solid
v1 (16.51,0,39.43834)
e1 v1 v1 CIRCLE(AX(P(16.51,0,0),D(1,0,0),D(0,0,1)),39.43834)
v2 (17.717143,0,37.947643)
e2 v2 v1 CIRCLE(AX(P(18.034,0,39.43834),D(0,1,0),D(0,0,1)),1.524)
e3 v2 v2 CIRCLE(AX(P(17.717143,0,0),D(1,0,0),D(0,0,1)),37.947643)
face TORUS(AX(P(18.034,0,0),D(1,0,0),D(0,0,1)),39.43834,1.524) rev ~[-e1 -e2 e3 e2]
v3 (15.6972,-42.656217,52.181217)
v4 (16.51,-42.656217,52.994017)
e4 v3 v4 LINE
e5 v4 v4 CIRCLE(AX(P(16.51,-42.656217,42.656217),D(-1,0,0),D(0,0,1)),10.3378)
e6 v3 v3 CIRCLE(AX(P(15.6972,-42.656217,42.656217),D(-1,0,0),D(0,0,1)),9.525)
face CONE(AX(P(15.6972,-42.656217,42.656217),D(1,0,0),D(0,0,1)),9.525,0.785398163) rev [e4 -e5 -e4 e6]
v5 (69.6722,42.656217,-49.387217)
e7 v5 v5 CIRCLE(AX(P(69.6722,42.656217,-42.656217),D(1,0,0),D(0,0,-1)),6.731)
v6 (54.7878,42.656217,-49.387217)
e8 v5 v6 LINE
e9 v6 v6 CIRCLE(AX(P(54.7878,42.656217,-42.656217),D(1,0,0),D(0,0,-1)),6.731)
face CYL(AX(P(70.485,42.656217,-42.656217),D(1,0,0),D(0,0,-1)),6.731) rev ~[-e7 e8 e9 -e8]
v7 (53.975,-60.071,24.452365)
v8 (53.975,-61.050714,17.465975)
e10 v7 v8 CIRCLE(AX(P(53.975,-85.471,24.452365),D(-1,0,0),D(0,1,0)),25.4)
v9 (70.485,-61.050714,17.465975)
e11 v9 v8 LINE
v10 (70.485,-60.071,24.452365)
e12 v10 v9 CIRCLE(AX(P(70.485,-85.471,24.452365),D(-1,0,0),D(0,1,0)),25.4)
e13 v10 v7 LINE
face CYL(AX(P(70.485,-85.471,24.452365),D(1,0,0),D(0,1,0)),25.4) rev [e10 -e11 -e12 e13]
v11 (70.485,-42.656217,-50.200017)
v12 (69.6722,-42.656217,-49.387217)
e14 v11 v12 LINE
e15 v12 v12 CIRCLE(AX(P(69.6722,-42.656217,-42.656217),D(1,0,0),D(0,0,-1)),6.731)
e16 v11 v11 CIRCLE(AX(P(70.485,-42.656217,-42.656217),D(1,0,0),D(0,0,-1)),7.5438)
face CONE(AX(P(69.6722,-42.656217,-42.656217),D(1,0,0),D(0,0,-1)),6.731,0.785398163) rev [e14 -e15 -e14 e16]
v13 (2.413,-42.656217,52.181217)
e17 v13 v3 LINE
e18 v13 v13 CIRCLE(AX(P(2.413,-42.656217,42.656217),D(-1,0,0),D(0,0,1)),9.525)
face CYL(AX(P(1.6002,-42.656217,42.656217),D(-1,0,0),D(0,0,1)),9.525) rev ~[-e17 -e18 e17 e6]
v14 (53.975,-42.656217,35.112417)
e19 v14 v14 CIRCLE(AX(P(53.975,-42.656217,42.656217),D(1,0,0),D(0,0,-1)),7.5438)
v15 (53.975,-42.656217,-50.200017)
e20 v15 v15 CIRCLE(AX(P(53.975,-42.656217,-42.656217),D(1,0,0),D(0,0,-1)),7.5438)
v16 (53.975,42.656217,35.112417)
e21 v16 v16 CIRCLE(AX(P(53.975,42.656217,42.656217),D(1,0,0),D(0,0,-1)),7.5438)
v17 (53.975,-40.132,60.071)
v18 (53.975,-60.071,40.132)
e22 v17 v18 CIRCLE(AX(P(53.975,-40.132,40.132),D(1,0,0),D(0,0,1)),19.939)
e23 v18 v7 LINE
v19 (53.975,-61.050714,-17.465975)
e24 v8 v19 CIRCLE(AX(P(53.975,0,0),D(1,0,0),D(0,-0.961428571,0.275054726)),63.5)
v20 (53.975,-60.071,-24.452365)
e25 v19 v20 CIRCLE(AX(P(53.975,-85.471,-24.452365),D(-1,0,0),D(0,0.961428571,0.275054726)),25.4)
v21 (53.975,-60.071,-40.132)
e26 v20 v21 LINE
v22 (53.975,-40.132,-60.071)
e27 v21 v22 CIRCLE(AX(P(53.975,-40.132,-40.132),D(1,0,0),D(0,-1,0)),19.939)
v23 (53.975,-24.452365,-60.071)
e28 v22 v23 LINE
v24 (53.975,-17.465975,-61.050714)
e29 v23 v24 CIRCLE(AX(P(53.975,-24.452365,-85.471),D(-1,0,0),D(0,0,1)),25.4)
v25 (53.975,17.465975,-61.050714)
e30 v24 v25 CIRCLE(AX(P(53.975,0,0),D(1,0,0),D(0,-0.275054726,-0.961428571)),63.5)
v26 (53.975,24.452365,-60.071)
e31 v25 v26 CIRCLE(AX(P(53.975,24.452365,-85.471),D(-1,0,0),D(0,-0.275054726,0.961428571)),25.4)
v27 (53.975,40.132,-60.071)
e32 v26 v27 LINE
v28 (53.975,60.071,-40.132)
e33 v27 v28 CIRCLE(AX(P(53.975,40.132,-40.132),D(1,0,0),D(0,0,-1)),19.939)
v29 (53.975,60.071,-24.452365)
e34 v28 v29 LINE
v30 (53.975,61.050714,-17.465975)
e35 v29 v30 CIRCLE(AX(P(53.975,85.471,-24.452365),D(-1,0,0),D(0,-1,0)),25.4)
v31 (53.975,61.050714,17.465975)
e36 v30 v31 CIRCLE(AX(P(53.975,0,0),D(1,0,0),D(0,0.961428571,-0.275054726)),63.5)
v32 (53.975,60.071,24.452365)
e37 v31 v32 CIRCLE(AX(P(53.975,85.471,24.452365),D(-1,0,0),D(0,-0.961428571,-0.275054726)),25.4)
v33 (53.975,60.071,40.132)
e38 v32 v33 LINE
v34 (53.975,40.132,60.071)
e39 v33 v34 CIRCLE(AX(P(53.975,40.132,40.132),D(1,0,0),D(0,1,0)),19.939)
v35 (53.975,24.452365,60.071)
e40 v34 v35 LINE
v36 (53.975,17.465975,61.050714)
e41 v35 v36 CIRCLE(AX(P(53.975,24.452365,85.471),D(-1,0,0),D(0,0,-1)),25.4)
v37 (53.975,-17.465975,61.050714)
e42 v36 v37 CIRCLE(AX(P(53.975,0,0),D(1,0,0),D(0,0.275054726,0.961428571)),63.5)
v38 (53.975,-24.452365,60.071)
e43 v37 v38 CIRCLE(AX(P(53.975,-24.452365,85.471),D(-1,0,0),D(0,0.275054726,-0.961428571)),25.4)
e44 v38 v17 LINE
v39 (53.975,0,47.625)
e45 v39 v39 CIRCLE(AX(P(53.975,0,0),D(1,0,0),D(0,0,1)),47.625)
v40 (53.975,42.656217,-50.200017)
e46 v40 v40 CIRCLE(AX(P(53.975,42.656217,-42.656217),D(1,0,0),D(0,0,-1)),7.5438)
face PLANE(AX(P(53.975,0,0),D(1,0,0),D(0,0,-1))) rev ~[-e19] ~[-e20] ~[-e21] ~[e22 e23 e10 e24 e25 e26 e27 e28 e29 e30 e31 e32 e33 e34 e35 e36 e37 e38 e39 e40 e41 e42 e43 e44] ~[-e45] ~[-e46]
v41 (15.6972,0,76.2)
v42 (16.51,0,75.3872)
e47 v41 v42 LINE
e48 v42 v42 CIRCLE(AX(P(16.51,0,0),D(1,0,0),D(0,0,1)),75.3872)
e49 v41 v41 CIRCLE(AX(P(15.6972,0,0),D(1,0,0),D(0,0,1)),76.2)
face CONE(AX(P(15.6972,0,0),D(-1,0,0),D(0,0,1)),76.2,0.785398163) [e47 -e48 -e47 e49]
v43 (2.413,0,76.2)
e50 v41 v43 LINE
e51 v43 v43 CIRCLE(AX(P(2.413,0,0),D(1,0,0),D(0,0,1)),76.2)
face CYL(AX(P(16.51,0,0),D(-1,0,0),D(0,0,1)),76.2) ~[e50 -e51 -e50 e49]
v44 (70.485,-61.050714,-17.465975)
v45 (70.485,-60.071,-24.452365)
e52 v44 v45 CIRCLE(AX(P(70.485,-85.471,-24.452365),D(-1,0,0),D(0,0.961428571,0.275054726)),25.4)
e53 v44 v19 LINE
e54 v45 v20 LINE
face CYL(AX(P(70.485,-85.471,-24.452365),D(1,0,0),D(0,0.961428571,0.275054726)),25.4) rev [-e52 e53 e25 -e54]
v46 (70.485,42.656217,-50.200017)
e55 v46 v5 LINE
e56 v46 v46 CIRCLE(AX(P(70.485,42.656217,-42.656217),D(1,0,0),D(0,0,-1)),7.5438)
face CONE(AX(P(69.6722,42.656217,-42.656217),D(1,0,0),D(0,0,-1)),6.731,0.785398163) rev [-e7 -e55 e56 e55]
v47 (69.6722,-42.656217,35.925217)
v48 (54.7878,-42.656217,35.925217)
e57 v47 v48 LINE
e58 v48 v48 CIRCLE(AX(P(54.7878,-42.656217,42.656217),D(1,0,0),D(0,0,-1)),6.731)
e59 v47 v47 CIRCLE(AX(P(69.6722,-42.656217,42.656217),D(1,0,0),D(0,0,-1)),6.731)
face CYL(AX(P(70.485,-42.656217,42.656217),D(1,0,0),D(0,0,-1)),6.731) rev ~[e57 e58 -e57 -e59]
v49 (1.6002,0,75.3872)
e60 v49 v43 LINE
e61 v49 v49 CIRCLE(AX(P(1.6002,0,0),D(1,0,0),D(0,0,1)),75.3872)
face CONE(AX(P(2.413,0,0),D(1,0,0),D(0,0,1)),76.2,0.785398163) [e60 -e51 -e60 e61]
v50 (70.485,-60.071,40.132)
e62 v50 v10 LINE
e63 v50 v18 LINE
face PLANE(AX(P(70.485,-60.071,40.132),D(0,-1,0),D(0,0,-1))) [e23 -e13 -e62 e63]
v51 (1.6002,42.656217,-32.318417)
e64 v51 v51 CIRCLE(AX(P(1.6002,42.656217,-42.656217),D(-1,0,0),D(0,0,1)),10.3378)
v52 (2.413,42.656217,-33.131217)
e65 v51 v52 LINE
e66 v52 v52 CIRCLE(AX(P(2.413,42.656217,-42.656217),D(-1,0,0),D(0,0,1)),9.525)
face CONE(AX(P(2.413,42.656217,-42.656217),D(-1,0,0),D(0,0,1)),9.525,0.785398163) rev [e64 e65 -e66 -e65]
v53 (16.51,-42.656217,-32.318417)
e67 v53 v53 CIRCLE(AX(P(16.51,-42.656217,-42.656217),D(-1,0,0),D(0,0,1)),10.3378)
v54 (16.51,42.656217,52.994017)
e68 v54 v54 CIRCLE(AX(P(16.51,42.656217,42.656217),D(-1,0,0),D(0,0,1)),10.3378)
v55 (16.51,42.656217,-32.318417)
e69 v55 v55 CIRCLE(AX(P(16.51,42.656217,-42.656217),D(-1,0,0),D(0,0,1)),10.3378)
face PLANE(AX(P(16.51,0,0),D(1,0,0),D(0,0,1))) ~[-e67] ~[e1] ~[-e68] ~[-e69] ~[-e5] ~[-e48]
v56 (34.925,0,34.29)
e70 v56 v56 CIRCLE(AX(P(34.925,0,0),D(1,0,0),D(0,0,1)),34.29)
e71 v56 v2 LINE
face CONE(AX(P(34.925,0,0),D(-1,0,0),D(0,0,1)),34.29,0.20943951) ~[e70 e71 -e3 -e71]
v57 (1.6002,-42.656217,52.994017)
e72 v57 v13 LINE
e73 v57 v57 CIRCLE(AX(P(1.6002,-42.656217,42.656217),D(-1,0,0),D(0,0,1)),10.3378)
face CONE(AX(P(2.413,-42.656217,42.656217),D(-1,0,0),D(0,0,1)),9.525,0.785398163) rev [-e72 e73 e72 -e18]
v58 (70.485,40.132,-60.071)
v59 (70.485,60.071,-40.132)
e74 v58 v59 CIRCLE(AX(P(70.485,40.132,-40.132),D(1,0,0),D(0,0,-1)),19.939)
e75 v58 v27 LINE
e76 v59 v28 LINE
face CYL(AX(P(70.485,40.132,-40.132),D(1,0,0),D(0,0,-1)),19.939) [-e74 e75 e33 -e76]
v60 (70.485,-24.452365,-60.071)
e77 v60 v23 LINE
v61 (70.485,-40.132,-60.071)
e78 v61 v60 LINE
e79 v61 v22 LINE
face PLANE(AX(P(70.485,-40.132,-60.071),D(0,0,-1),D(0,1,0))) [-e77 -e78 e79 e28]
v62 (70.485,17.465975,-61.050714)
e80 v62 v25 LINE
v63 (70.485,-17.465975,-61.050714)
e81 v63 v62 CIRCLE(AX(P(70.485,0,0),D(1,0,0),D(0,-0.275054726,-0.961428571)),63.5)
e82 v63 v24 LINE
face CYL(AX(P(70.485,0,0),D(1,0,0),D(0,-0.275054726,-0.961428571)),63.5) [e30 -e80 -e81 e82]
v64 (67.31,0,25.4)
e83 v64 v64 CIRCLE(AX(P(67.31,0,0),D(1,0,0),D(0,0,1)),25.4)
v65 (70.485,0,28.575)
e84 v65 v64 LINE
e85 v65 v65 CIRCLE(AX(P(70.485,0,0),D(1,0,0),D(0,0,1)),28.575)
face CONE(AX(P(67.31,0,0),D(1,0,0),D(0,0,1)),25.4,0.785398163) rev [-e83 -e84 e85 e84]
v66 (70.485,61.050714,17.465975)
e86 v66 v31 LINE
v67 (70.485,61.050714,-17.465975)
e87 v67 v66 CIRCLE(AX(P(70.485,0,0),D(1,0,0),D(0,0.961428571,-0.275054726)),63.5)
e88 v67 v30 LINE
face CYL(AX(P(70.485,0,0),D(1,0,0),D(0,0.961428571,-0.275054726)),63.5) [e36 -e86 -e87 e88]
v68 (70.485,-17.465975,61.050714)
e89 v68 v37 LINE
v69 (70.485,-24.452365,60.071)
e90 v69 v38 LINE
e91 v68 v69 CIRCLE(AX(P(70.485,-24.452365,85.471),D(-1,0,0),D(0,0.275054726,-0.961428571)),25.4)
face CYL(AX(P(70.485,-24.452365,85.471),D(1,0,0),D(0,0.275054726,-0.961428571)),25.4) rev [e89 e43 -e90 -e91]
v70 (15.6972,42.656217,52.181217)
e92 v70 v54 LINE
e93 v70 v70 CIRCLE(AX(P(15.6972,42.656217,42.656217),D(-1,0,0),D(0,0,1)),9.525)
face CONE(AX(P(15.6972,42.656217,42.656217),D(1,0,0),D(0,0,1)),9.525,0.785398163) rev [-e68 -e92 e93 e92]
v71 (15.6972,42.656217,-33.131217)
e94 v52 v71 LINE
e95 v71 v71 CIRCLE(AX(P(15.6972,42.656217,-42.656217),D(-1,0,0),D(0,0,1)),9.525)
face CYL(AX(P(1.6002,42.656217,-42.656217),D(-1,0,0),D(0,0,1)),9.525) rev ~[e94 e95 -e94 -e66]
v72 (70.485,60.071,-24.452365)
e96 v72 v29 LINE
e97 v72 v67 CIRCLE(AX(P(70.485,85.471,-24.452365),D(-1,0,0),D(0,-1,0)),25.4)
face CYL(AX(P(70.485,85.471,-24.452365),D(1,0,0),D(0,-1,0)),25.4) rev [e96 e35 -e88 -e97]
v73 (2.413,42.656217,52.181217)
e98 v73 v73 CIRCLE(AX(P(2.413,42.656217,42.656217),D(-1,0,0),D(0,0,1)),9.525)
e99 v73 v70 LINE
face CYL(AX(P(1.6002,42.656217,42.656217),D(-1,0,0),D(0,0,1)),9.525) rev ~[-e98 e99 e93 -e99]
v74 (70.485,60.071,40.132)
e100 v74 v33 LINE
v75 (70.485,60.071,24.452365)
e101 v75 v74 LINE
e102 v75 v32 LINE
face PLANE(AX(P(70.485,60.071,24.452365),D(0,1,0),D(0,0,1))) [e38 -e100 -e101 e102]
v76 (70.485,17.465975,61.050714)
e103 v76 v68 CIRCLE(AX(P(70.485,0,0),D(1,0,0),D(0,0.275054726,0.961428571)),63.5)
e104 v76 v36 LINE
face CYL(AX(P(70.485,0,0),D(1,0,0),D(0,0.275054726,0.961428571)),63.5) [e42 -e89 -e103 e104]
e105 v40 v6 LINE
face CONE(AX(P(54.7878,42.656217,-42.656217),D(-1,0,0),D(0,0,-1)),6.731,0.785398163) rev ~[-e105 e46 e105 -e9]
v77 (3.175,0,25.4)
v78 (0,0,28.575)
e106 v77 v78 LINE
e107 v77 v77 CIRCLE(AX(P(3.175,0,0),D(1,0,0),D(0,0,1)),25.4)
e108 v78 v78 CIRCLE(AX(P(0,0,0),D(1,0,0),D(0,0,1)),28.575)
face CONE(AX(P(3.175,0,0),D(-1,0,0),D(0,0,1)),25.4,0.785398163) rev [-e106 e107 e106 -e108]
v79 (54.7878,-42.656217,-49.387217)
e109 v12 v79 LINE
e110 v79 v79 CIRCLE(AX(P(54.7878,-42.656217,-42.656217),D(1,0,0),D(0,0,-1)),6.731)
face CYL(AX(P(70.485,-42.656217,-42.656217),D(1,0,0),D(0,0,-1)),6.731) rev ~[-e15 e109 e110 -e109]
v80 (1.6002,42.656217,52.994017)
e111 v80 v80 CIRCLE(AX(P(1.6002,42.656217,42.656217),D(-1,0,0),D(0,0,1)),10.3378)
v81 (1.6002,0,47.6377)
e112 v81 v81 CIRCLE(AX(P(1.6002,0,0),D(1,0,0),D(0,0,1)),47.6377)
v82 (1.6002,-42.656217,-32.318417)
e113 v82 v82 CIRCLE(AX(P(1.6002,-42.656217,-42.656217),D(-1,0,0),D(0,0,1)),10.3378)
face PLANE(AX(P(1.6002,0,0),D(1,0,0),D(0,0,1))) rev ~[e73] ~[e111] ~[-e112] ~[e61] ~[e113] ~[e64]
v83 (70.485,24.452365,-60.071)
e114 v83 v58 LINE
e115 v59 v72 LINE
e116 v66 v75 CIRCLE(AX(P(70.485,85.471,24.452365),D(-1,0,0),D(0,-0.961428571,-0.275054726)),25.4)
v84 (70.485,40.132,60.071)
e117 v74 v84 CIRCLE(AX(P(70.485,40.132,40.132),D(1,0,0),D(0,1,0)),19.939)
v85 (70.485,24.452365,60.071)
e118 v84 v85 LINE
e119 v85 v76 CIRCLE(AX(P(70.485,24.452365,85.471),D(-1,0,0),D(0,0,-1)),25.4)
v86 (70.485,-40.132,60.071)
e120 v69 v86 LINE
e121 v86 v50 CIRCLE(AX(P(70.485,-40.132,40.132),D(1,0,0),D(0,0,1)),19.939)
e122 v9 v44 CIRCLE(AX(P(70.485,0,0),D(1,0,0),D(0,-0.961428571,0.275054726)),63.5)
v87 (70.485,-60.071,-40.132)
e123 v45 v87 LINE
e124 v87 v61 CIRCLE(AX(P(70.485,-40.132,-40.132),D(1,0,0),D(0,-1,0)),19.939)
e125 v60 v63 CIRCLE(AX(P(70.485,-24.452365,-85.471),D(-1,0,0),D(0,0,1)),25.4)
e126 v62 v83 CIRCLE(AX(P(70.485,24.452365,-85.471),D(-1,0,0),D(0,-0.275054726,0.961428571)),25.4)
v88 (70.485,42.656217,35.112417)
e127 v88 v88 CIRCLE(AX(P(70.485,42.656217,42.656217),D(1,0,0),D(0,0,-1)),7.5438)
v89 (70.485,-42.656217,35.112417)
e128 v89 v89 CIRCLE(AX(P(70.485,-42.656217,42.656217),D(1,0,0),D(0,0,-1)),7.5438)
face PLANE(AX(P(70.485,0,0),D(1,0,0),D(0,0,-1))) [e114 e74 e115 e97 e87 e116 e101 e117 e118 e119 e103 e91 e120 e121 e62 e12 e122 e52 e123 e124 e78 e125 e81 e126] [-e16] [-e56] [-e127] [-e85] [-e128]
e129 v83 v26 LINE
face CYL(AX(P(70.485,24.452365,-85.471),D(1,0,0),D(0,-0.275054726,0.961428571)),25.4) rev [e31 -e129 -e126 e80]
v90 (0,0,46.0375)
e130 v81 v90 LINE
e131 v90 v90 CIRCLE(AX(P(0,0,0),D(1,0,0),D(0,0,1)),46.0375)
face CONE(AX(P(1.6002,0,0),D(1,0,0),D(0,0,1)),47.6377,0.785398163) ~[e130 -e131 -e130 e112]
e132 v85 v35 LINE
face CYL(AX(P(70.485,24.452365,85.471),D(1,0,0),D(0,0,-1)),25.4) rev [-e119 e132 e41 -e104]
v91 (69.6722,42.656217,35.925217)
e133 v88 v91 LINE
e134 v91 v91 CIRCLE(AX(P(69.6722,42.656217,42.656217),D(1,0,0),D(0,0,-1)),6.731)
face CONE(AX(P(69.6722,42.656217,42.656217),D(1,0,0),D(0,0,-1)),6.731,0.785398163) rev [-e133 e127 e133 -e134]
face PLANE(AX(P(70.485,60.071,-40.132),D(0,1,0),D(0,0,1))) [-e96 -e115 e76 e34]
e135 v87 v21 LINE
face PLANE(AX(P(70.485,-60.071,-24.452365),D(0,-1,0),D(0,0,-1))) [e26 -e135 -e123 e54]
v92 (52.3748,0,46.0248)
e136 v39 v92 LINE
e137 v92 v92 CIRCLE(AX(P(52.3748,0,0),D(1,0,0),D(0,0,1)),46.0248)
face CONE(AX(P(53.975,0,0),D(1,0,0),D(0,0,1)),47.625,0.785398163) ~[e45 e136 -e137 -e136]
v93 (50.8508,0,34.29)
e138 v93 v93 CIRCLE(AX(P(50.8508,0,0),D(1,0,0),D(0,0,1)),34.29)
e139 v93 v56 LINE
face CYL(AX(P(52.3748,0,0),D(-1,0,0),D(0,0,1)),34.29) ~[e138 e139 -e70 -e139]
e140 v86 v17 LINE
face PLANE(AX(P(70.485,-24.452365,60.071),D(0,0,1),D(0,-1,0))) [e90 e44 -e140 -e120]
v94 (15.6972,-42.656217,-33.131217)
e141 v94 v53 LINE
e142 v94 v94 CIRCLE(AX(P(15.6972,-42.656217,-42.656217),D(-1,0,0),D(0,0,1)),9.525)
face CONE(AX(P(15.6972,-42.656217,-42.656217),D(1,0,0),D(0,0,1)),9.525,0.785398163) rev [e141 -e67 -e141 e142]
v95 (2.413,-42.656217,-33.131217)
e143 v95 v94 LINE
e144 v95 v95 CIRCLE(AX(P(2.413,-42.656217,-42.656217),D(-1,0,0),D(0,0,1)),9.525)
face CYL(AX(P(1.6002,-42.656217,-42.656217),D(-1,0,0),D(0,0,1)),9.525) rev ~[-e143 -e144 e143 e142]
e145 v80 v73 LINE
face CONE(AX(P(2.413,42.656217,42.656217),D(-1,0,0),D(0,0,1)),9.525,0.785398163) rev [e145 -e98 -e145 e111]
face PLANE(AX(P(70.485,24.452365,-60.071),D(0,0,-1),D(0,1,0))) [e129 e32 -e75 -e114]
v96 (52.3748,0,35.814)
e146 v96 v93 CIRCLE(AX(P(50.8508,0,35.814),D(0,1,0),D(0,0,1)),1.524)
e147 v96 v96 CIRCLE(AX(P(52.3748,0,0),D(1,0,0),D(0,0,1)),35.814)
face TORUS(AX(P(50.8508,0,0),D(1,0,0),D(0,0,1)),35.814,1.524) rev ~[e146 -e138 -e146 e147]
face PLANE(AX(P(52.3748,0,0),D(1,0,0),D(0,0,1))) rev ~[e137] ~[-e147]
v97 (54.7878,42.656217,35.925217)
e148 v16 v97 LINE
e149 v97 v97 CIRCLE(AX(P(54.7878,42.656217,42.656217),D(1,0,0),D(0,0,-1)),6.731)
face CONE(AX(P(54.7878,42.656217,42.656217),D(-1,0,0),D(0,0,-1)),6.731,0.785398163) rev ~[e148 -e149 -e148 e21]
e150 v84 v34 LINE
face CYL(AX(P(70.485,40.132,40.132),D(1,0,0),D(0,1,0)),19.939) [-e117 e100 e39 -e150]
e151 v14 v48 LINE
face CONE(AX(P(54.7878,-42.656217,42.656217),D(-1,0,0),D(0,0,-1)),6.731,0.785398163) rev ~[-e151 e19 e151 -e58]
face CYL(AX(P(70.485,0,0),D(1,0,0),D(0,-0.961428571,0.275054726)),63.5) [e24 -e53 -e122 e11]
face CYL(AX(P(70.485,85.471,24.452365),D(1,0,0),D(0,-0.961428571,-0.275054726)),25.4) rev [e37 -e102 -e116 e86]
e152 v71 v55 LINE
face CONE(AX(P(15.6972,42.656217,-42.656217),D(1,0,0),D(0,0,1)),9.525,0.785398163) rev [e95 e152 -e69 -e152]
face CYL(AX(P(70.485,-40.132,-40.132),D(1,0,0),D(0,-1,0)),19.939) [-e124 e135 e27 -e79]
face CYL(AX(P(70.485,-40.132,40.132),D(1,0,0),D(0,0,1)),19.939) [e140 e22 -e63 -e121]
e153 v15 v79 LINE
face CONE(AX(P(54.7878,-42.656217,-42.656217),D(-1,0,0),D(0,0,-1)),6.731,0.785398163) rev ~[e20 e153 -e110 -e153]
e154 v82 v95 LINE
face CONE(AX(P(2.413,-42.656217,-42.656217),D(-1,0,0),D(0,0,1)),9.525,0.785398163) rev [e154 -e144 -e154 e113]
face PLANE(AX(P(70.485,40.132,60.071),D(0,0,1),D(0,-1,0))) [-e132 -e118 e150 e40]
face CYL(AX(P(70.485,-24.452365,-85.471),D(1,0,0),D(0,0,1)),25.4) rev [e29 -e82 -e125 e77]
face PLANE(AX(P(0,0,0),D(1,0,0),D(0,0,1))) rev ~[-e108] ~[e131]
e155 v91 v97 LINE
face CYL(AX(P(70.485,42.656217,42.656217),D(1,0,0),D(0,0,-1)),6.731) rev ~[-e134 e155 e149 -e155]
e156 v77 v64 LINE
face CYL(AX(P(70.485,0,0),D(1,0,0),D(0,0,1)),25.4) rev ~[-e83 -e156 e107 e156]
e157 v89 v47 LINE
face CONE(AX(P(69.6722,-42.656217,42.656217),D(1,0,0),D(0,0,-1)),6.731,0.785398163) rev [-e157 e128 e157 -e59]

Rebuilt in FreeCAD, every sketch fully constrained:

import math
import FreeCAD as App
import Part
import Sketcher
from FreeCAD import Vector
Q = App.Units.Quantity


def edges_at(feature, points):
    """Names of the edges that pass closest to the given points."""
    edges = feature.Shape.Edges
    near = lambda p: min(range(len(edges)), key=lambda i: edges[i].distToShape(Part.Vertex(*p))[0])
    return sorted({f"Edge{near(p) + 1}" for p in points})

doc = App.newDocument("Part")
body = doc.addObject("PartDesign::Body", "Body")

# Sketch on XY plane
sketch1 = doc.addObject("Sketcher::SketchObject", "Sketch")
body.addObject(sketch1)
sketch1.AttachmentSupport = (doc.XY_Plane, [""])
sketch1.MapMode = "FlatFace"
sketch1.addGeometry(Part.LineSegment(Vector(0, 25.4, 0), Vector(54, 25.4, 0)), False)
sketch1.addGeometry(Part.LineSegment(Vector(54, 25.4, 0), Vector(54, 47.6, 0)), False)
sketch1.addGeometry(Part.LineSegment(Vector(54, 47.6, 0), Vector(52.4, 46, 0)), False)
sketch1.addGeometry(Part.LineSegment(Vector(52.4, 46, 0), Vector(52.4, 34.3, 0)), False)
sketch1.addGeometry(Part.LineSegment(Vector(52.4, 34.3, 0), Vector(34.9, 34.3, 0)), False)
sketch1.addGeometry(Part.LineSegment(Vector(34.9, 34.3, 0), Vector(16.5, 38.2, 0)), False)
sketch1.addGeometry(Part.LineSegment(Vector(16.5, 38.2, 0), Vector(16.5, 76.2, 0)), False)
sketch1.addGeometry(Part.LineSegment(Vector(16.5, 76.2, 0), Vector(1.6, 76.2, 0)), False)
sketch1.addGeometry(Part.LineSegment(Vector(1.6, 76.2, 0), Vector(1.6, 47.6, 0)), False)
sketch1.addGeometry(Part.LineSegment(Vector(1.6, 47.6, 0), Vector(0, 46, 0)), False)
sketch1.addGeometry(Part.LineSegment(Vector(0, 46, 0), Vector(0, 25.4, 0)), False)
sketch1.addConstraint(Sketcher.Constraint("Coincident", 0, 2, 1, 1))
sketch1.addConstraint(Sketcher.Constraint("Coincident", 1, 2, 2, 1))
sketch1.addConstraint(Sketcher.Constraint("Coincident", 2, 2, 3, 1))
sketch1.addConstraint(Sketcher.Constraint("Coincident", 3, 2, 4, 1))
sketch1.addConstraint(Sketcher.Constraint("Coincident", 4, 2, 5, 1))
sketch1.addConstraint(Sketcher.Constraint("Coincident", 5, 2, 6, 1))
sketch1.addConstraint(Sketcher.Constraint("Coincident", 6, 2, 7, 1))
sketch1.addConstraint(Sketcher.Constraint("Coincident", 7, 2, 8, 1))
sketch1.addConstraint(Sketcher.Constraint("Coincident", 8, 2, 9, 1))
sketch1.addConstraint(Sketcher.Constraint("Coincident", 9, 2, 10, 1))
sketch1.addConstraint(Sketcher.Constraint("Coincident", 10, 2, 0, 1))
sketch1.addConstraint(Sketcher.Constraint("Horizontal", 0))
sketch1.addConstraint(Sketcher.Constraint("Vertical", 1))
sketch1.addConstraint(Sketcher.Constraint("Vertical", 3))
sketch1.addConstraint(Sketcher.Constraint("Horizontal", 4))
sketch1.addConstraint(Sketcher.Constraint("Vertical", 6))
sketch1.addConstraint(Sketcher.Constraint("Horizontal", 7))
sketch1.addConstraint(Sketcher.Constraint("Vertical", 8))
sketch1.addConstraint(Sketcher.Constraint("Vertical", 10))
sketch1.addConstraint(Sketcher.Constraint("PointOnObject", 9, 2, -2))
sketch1.addConstraint(Sketcher.Constraint("Parallel", 2, 9))
sketch1.addConstraint(Sketcher.Constraint("Equal", 2, 9))
sketch1.addConstraint(Sketcher.Constraint("DistanceY", -1, 1, 0, 2, Q("1 in")))
sketch1.addConstraint(Sketcher.Constraint("DistanceY", -1, 1, 6, 2, Q("3 in")))
sketch1.addConstraint(Sketcher.Constraint("Angle", 2, Q("-135 deg")))
sketch1.addConstraint(Sketcher.Constraint("Angle", 5, Q("168 deg")))
sketch1.addConstraint(Sketcher.Constraint("DistanceX", 0, 1, 0, 2, Q("2.125 in")))
sketch1.addConstraint(Sketcher.Constraint("DistanceX", 4, 2, 4, 1, Q("0.687 in")))
sketch1.addConstraint(Sketcher.Constraint("DistanceX", 7, 2, 7, 1, Q("0.587 in")))
sketch1.addConstraint(Sketcher.Constraint("DistanceY", 1, 1, 1, 2, Q("0.875 in")))
sketch1.addConstraint(Sketcher.Constraint("DistanceY", 3, 2, 3, 1, Q("0.462 in")))
sketch1.addConstraint(Sketcher.Constraint("DistanceY", 10, 2, 10, 1, Q("0.8125 in")))
sketch1.addConstraint(Sketcher.Constraint("DistanceY", -1, 1, 3, 2, Q("1.35 in")))
revolution = doc.addObject("PartDesign::Revolution", "Revolution")
body.addObject(revolution)
revolution.Profile = sketch1
revolution.ReferenceAxis = (sketch1, ["H_Axis"])
revolution.Angle = 360

# Sketch on YZ plane
sketch2 = doc.addObject("Sketcher::SketchObject", "Sketch001")
body.addObject(sketch2)
sketch2.AttachmentSupport = (doc.YZ_Plane, [""])
sketch2.MapMode = "FlatFace"
sketch2.AttachmentOffset = App.Placement(Vector(0, 0, 2.775 * 25.4), App.Rotation())
sketch2.addGeometry(Part.LineSegment(Vector(40, 60, 0), Vector(24, 60, 0)), False)
sketch2.addGeometry(Part.ArcOfCircle(Part.Circle(Vector(24, 85, 0), Vector(0, 0, 1), 25), math.radians(-105.97), math.radians(-90)), False)
sketch2.addGeometry(Part.ArcOfCircle(Part.Circle(Vector(0, 0, 0), Vector(0, 0, 1), 64), math.radians(74), math.radians(106)), False)
sketch2.addGeometry(Part.ArcOfCircle(Part.Circle(Vector(-24, 85, 0), Vector(0, 0, 1), 25), math.radians(-90), math.radians(-74.03)), False)
sketch2.addGeometry(Part.LineSegment(Vector(-24, 60, 0), Vector(-40, 60, 0)), False)
sketch2.addGeometry(Part.ArcOfCircle(Part.Circle(Vector(-40, 40, 0), Vector(0, 0, 1), 20), math.radians(90), math.radians(180)), False)
sketch2.addGeometry(Part.LineSegment(Vector(-60, 40, 0), Vector(-60, 24, 0)), False)
sketch2.addGeometry(Part.ArcOfCircle(Part.Circle(Vector(-85, 24, 0), Vector(0, 0, 1), 25), math.radians(-15.97), math.radians(0)), False)
sketch2.addGeometry(Part.ArcOfCircle(Part.Circle(Vector(0, 0, 0), Vector(0, 0, 1), 64), math.radians(164), math.radians(196)), False)
sketch2.addGeometry(Part.ArcOfCircle(Part.Circle(Vector(-85, -24, 0), Vector(0, 0, 1), 25), math.radians(0), math.radians(15.97)), False)
sketch2.addGeometry(Part.LineSegment(Vector(-60, -24, 0), Vector(-60, -40, 0)), False)
sketch2.addGeometry(Part.ArcOfCircle(Part.Circle(Vector(-40, -40, 0), Vector(0, 0, 1), 20), math.radians(180), math.radians(270)), False)
sketch2.addGeometry(Part.LineSegment(Vector(-40, -60, 0), Vector(-24, -60, 0)), False)
sketch2.addGeometry(Part.ArcOfCircle(Part.Circle(Vector(-24, -85, 0), Vector(0, 0, 1), 25), math.radians(74.03), math.radians(90)), False)
sketch2.addGeometry(Part.ArcOfCircle(Part.Circle(Vector(0, 0, 0), Vector(0, 0, 1), 64), math.radians(-106), math.radians(-74)), False)
sketch2.addGeometry(Part.ArcOfCircle(Part.Circle(Vector(24, -85, 0), Vector(0, 0, 1), 25), math.radians(90), math.radians(105.97)), False)
sketch2.addGeometry(Part.LineSegment(Vector(24, -60, 0), Vector(40, -60, 0)), False)
sketch2.addGeometry(Part.ArcOfCircle(Part.Circle(Vector(40, -40, 0), Vector(0, 0, 1), 20), math.radians(-90), math.radians(0)), False)
sketch2.addGeometry(Part.LineSegment(Vector(60, -40, 0), Vector(60, -24, 0)), False)
sketch2.addGeometry(Part.ArcOfCircle(Part.Circle(Vector(85, -24, 0), Vector(0, 0, 1), 25), math.radians(164.03), math.radians(180)), False)
sketch2.addGeometry(Part.ArcOfCircle(Part.Circle(Vector(0, 0, 0), Vector(0, 0, 1), 64), math.radians(-16), math.radians(16)), False)
sketch2.addGeometry(Part.ArcOfCircle(Part.Circle(Vector(85, 24, 0), Vector(0, 0, 1), 25), math.radians(180), math.radians(195.97)), False)
sketch2.addGeometry(Part.LineSegment(Vector(60, 24, 0), Vector(60, 40, 0)), False)
sketch2.addGeometry(Part.ArcOfCircle(Part.Circle(Vector(40, 40, 0), Vector(0, 0, 1), 20), math.radians(0), math.radians(90)), False)
sketch2.addGeometry(Part.Circle(Vector(-43, 43, 0), Vector(0, 0, 1), 7), False)
sketch2.addGeometry(Part.Circle(Vector(-43, -43, 0), Vector(0, 0, 1), 7), False)
sketch2.addGeometry(Part.Circle(Vector(43, 43, 0), Vector(0, 0, 1), 7), False)
sketch2.addGeometry(Part.Circle(Vector(0, 0, 0), Vector(0, 0, 1), 25), False)
sketch2.addGeometry(Part.Circle(Vector(43, -43, 0), Vector(0, 0, 1), 7), False)
sketch2.addConstraint(Sketcher.Constraint("Tangent", 0, 2, 1, 2))
sketch2.addConstraint(Sketcher.Constraint("Tangent", 1, 1, 2, 1))
sketch2.addConstraint(Sketcher.Constraint("Tangent", 2, 2, 3, 2))
sketch2.addConstraint(Sketcher.Constraint("Tangent", 3, 1, 4, 1))
sketch2.addConstraint(Sketcher.Constraint("Tangent", 4, 2, 5, 1))
sketch2.addConstraint(Sketcher.Constraint("Tangent", 5, 2, 6, 1))
sketch2.addConstraint(Sketcher.Constraint("Tangent", 6, 2, 7, 2))
sketch2.addConstraint(Sketcher.Constraint("Tangent", 7, 1, 8, 1))
sketch2.addConstraint(Sketcher.Constraint("Tangent", 8, 2, 9, 2))
sketch2.addConstraint(Sketcher.Constraint("Tangent", 9, 1, 10, 1))
sketch2.addConstraint(Sketcher.Constraint("Tangent", 10, 2, 11, 1))
sketch2.addConstraint(Sketcher.Constraint("Tangent", 11, 2, 12, 1))
sketch2.addConstraint(Sketcher.Constraint("Tangent", 12, 2, 13, 2))
sketch2.addConstraint(Sketcher.Constraint("Tangent", 13, 1, 14, 1))
sketch2.addConstraint(Sketcher.Constraint("Tangent", 14, 2, 15, 2))
sketch2.addConstraint(Sketcher.Constraint("Tangent", 15, 1, 16, 1))
sketch2.addConstraint(Sketcher.Constraint("Tangent", 16, 2, 17, 1))
sketch2.addConstraint(Sketcher.Constraint("Tangent", 17, 2, 18, 1))
sketch2.addConstraint(Sketcher.Constraint("Tangent", 18, 2, 19, 2))
sketch2.addConstraint(Sketcher.Constraint("Tangent", 19, 1, 20, 1))
sketch2.addConstraint(Sketcher.Constraint("Tangent", 20, 2, 21, 2))
sketch2.addConstraint(Sketcher.Constraint("Tangent", 21, 1, 22, 1))
sketch2.addConstraint(Sketcher.Constraint("Tangent", 22, 2, 23, 1))
sketch2.addConstraint(Sketcher.Constraint("Tangent", 23, 2, 0, 1))
sketch2.addConstraint(Sketcher.Constraint("Horizontal", 0))
sketch2.addConstraint(Sketcher.Constraint("Horizontal", 4))
sketch2.addConstraint(Sketcher.Constraint("Vertical", 6))
sketch2.addConstraint(Sketcher.Constraint("Vertical", 10))
sketch2.addConstraint(Sketcher.Constraint("Horizontal", 12))
sketch2.addConstraint(Sketcher.Constraint("Horizontal", 16))
sketch2.addConstraint(Sketcher.Constraint("Vertical", 18))
sketch2.addConstraint(Sketcher.Constraint("Vertical", 22))
sketch2.addConstraint(Sketcher.Constraint("Coincident", 2, 3, -1, 1))
sketch2.addConstraint(Sketcher.Constraint("Coincident", 8, 3, -1, 1))
sketch2.addConstraint(Sketcher.Constraint("Coincident", 14, 3, -1, 1))
sketch2.addConstraint(Sketcher.Constraint("Coincident", 20, 3, -1, 1))
sketch2.addConstraint(Sketcher.Constraint("Coincident", 27, 3, -1, 1))
sketch2.addConstraint(Sketcher.Constraint("Equal", 1, 3))
sketch2.addConstraint(Sketcher.Constraint("Equal", 3, 7))
sketch2.addConstraint(Sketcher.Constraint("Equal", 2, 8))
sketch2.addConstraint(Sketcher.Constraint("Equal", 7, 9))
sketch2.addConstraint(Sketcher.Constraint("Equal", 5, 11))
sketch2.addConstraint(Sketcher.Constraint("Equal", 9, 13))
sketch2.addConstraint(Sketcher.Constraint("Equal", 8, 14))
sketch2.addConstraint(Sketcher.Constraint("Equal", 13, 15))
sketch2.addConstraint(Sketcher.Constraint("Equal", 11, 17))
sketch2.addConstraint(Sketcher.Constraint("Equal", 15, 19))
sketch2.addConstraint(Sketcher.Constraint("Equal", 14, 20))
sketch2.addConstraint(Sketcher.Constraint("Equal", 19, 21))
sketch2.addConstraint(Sketcher.Constraint("Equal", 17, 23))
sketch2.addConstraint(Sketcher.Constraint("Equal", 24, 25))
sketch2.addConstraint(Sketcher.Constraint("Equal", 25, 26))
sketch2.addConstraint(Sketcher.Constraint("Equal", 21, 27))
sketch2.addConstraint(Sketcher.Constraint("Equal", 26, 28))
sketch2.addConstraint(Sketcher.Constraint("Symmetric", 5, 3, 17, 3, -1, 1))
sketch2.addConstraint(Sketcher.Constraint("Symmetric", 11, 3, 23, 3, -1, 1))
sketch2.addConstraint(Sketcher.Constraint("Symmetric", 25, 3, 26, 3, -1, 1))
sketch2.addConstraint(Sketcher.Constraint("Symmetric", 24, 3, 28, 3, -1, 1))
sketch2.addConstraint(Sketcher.Constraint("Symmetric", 11, 3, 17, 3, -2))
sketch2.addConstraint(Sketcher.Constraint("Symmetric", 24, 3, 26, 3, -2))
sketch2.addConstraint(Sketcher.Constraint("Equal", 16, 6))
sketch2.addConstraint(Sketcher.Constraint("Diameter", 27, Q("2 in")))
sketch2.addConstraint(Sketcher.Constraint("Radius", 2, Q("2.5 in")))
sketch2.addConstraint(Sketcher.Constraint("Diameter", 24, Q("0.53 in")))
sketch2.addConstraint(Sketcher.Constraint("Radius", 5, Q("0.785 in")))
sketch2.addConstraint(Sketcher.Constraint("DistanceX", 5, 3, -1, 1, Q("1.58 in")))
sketch2.addConstraint(Sketcher.Constraint("DistanceX", 24, 3, 3, 3, 18.203851))
sketch2.addConstraint(Sketcher.Constraint("DistanceY", 7, 3, 24, 3, 18.203851))
pad1 = doc.addObject("PartDesign::Pad", "Pad")
body.addObject(pad1)
pad1.Profile = sketch2
pad1.Length = Q("0.65 in")
pad1.Reversed = True

# Sketch on YZ plane
sketch3 = doc.addObject("Sketcher::SketchObject", "Sketch002")
body.addObject(sketch3)
sketch3.AttachmentSupport = (doc.YZ_Plane, [""])
sketch3.MapMode = "FlatFace"
sketch3.AttachmentOffset = App.Placement(Vector(0, 0, 0.063 * 25.4), App.Rotation())
sketch3.addGeometry(Part.Circle(Vector(43, -43, 0), Vector(0, 0, 1), 10), False)
sketch3.addConstraint(Sketcher.Constraint("Diameter", 0, Q("0.75 in")))
sketch3.addConstraint(Sketcher.Constraint("DistanceX", -1, 1, 0, 3, 42.656217))
sketch3.addConstraint(Sketcher.Constraint("DistanceY", 0, 3, -1, 1, 42.656217))
pocket1 = doc.addObject("PartDesign::Pocket", "Pocket")
body.addObject(pocket1)
pocket1.Profile = sketch3
pocket1.Type = "UpToFirst"
pocket1.Reversed = True

# Sketch on YZ plane
sketch4 = doc.addObject("Sketcher::SketchObject", "Sketch003")
body.addObject(sketch4)
sketch4.AttachmentSupport = (doc.YZ_Plane, [""])
sketch4.MapMode = "FlatFace"
sketch4.AttachmentOffset = App.Placement(Vector(0, 0, 0.063 * 25.4), App.Rotation())
sketch4.addGeometry(Part.Circle(Vector(43, 43, 0), Vector(0, 0, 1), 10), False)
sketch4.addConstraint(Sketcher.Constraint("Diameter", 0, Q("0.75 in")))
sketch4.addConstraint(Sketcher.Constraint("DistanceX", -1, 1, 0, 3, 42.656217))
sketch4.addConstraint(Sketcher.Constraint("DistanceY", -1, 1, 0, 3, 42.656217))
pocket2 = doc.addObject("PartDesign::Pocket", "Pocket001")
body.addObject(pocket2)
pocket2.Profile = sketch4
pocket2.Type = "UpToFirst"
pocket2.Reversed = True

# Sketch on YZ plane
sketch5 = doc.addObject("Sketcher::SketchObject", "Sketch004")
body.addObject(sketch5)
sketch5.AttachmentSupport = (doc.YZ_Plane, [""])
sketch5.MapMode = "FlatFace"
sketch5.AttachmentOffset = App.Placement(Vector(0, 0, 0.063 * 25.4), App.Rotation())
sketch5.addGeometry(Part.Circle(Vector(-43, 43, 0), Vector(0, 0, 1), 10), False)
sketch5.addConstraint(Sketcher.Constraint("Diameter", 0, Q("0.75 in")))
sketch5.addConstraint(Sketcher.Constraint("DistanceX", 0, 3, -1, 1, 42.656217))
sketch5.addConstraint(Sketcher.Constraint("DistanceY", -1, 1, 0, 3, 42.656217))
pocket3 = doc.addObject("PartDesign::Pocket", "Pocket002")
body.addObject(pocket3)
pocket3.Profile = sketch5
pocket3.Type = "UpToFirst"
pocket3.Reversed = True

# Sketch on YZ plane
sketch6 = doc.addObject("Sketcher::SketchObject", "Sketch005")
body.addObject(sketch6)
sketch6.AttachmentSupport = (doc.YZ_Plane, [""])
sketch6.MapMode = "FlatFace"
sketch6.AttachmentOffset = App.Placement(Vector(0, 0, 0.063 * 25.4), App.Rotation())
sketch6.addGeometry(Part.Circle(Vector(-43, -43, 0), Vector(0, 0, 1), 10), False)
sketch6.addConstraint(Sketcher.Constraint("Diameter", 0, Q("0.75 in")))
sketch6.addConstraint(Sketcher.Constraint("DistanceX", 0, 3, -1, 1, 42.656217))
sketch6.addConstraint(Sketcher.Constraint("DistanceY", 0, 3, -1, 1, 42.656217))
pocket4 = doc.addObject("PartDesign::Pocket", "Pocket003")
body.addObject(pocket4)
pocket4.Profile = sketch6
pocket4.Type = "UpToFirst"
pocket4.Reversed = True
doc.recompute()

chamfer = doc.addObject("PartDesign::Chamfer", "Chamfer")
body.addObject(chamfer)
chamfer.Base = (pocket4, edges_at(pocket4, [
    (53.975, 42.656, 49.387),
    (53.975, 42.656, -35.925),
    (53.975, -42.656, -35.925),
    (53.975, -42.656, 49.387),
    (70.485, 42.656, 49.387),
    (70.485, 42.656, -35.925),
    (70.485, -42.656, -35.925),
    (70.485, -42.656, 49.387),
    (1.6, 0, -76.2),
    (16.51, 0, -76.2),
    (1.6, -42.656, -52.181),
    (16.51, -42.656, -52.181),
    (1.6, -42.656, 33.131),
    (16.51, -42.656, 33.131),
    (1.6, 42.656, 33.131),
    (16.51, 42.656, 33.131),
    (1.6, 42.656, -52.181),
    (16.51, 42.656, -52.181),
]))
chamfer.Size = Q("0.032 in")
doc.recompute()

chamfer2 = doc.addObject("PartDesign::Chamfer", "Chamfer001")
body.addObject(chamfer2)
chamfer2.Base = (chamfer, edges_at(chamfer, [(0, 0, -25.4), (70.485, 0, -25.4)]))
chamfer2.Size = Q("0.125 in")
doc.recompute()

fillet = doc.addObject("PartDesign::Fillet", "Fillet")
body.addObject(fillet)
fillet.Base = (chamfer2, edges_at(chamfer2, [(52.375, 0, -34.29), (16.51, 0, -38.204)]))
fillet.Radius = Q("0.06 in")
body2 = doc.addObject("PartDesign::Body", "Body001")

# Sketch on YZ plane
sketch7 = doc.addObject("Sketcher::SketchObject", "Sketch006")
body2.addObject(sketch7)
sketch7.AttachmentSupport = (doc.getObject("YZ_Plane001"), [""])
sketch7.MapMode = "FlatFace"
sketch7.AttachmentOffset = App.Placement(Vector(0, 0, 2.775 * 25.4), App.Rotation())
sketch7.addGeometry(Part.LineSegment(Vector(60, 24, 0), Vector(60, 40, 0)), False)
sketch7.addGeometry(Part.ArcOfCircle(Part.Circle(Vector(40, 40, 0), Vector(0, 0, 1), 20), math.radians(0), math.radians(90)), False)
sketch7.addGeometry(Part.LineSegment(Vector(40, 60, 0), Vector(24, 60, 0)), False)
sketch7.addGeometry(Part.ArcOfCircle(Part.Circle(Vector(24, 85, 0), Vector(0, 0, 1), 25), math.radians(-105.97), math.radians(-90)), False)
sketch7.addGeometry(Part.ArcOfCircle(Part.Circle(Vector(0, 0, 0), Vector(0, 0, 1), 64), math.radians(74), math.radians(106)), False)
sketch7.addGeometry(Part.ArcOfCircle(Part.Circle(Vector(-24, 85, 0), Vector(0, 0, 1), 25), math.radians(-90), math.radians(-74.03)), False)
sketch7.addGeometry(Part.LineSegment(Vector(-24, 60, 0), Vector(-40, 60, 0)), False)
sketch7.addGeometry(Part.ArcOfCircle(Part.Circle(Vector(-40, 40, 0), Vector(0, 0, 1), 20), math.radians(90), math.radians(180)), False)
sketch7.addGeometry(Part.LineSegment(Vector(-60, 40, 0), Vector(-60, 24, 0)), False)
sketch7.addGeometry(Part.ArcOfCircle(Part.Circle(Vector(-85, 24, 0), Vector(0, 0, 1), 25), math.radians(-15.97), math.radians(0)), False)
sketch7.addGeometry(Part.ArcOfCircle(Part.Circle(Vector(0, 0, 0), Vector(0, 0, 1), 64), math.radians(164), math.radians(196)), False)
sketch7.addGeometry(Part.ArcOfCircle(Part.Circle(Vector(-85, -24, 0), Vector(0, 0, 1), 25), math.radians(0), math.radians(15.97)), False)
sketch7.addGeometry(Part.LineSegment(Vector(-60, -24, 0), Vector(-60, -40, 0)), False)
sketch7.addGeometry(Part.ArcOfCircle(Part.Circle(Vector(-40, -40, 0), Vector(0, 0, 1), 20), math.radians(180), math.radians(270)), False)
sketch7.addGeometry(Part.LineSegment(Vector(-40, -60, 0), Vector(-24, -60, 0)), False)
sketch7.addGeometry(Part.ArcOfCircle(Part.Circle(Vector(-24, -85, 0), Vector(0, 0, 1), 25), math.radians(74.03), math.radians(90)), False)
sketch7.addGeometry(Part.ArcOfCircle(Part.Circle(Vector(0, 0, 0), Vector(0, 0, 1), 64), math.radians(-106), math.radians(-74)), False)
sketch7.addGeometry(Part.ArcOfCircle(Part.Circle(Vector(24, -85, 0), Vector(0, 0, 1), 25), math.radians(90), math.radians(105.97)), False)
sketch7.addGeometry(Part.LineSegment(Vector(24, -60, 0), Vector(40, -60, 0)), False)
sketch7.addGeometry(Part.ArcOfCircle(Part.Circle(Vector(40, -40, 0), Vector(0, 0, 1), 20), math.radians(-90), math.radians(0)), False)
sketch7.addGeometry(Part.LineSegment(Vector(60, -40, 0), Vector(60, -24, 0)), False)
sketch7.addGeometry(Part.ArcOfCircle(Part.Circle(Vector(85, -24, 0), Vector(0, 0, 1), 25), math.radians(164.03), math.radians(180)), False)
sketch7.addGeometry(Part.ArcOfCircle(Part.Circle(Vector(0, 0, 0), Vector(0, 0, 1), 64), math.radians(-16), math.radians(16)), False)
sketch7.addGeometry(Part.ArcOfCircle(Part.Circle(Vector(85, 24, 0), Vector(0, 0, 1), 25), math.radians(180), math.radians(195.97)), False)
sketch7.addGeometry(Part.Circle(Vector(-43, 43, 0), Vector(0, 0, 1), 7), False)
sketch7.addGeometry(Part.Circle(Vector(-43, -43, 0), Vector(0, 0, 1), 7), False)
sketch7.addGeometry(Part.Circle(Vector(43, 43, 0), Vector(0, 0, 1), 7), False)
sketch7.addGeometry(Part.Circle(Vector(0, 0, 0), Vector(0, 0, 1), 25), False)
sketch7.addGeometry(Part.Circle(Vector(43, -43, 0), Vector(0, 0, 1), 7), False)
sketch7.addConstraint(Sketcher.Constraint("Tangent", 0, 2, 1, 1))
sketch7.addConstraint(Sketcher.Constraint("Tangent", 1, 2, 2, 1))
sketch7.addConstraint(Sketcher.Constraint("Tangent", 2, 2, 3, 2))
sketch7.addConstraint(Sketcher.Constraint("Tangent", 3, 1, 4, 1))
sketch7.addConstraint(Sketcher.Constraint("Tangent", 4, 2, 5, 2))
sketch7.addConstraint(Sketcher.Constraint("Tangent", 5, 1, 6, 1))
sketch7.addConstraint(Sketcher.Constraint("Tangent", 6, 2, 7, 1))
sketch7.addConstraint(Sketcher.Constraint("Tangent", 7, 2, 8, 1))
sketch7.addConstraint(Sketcher.Constraint("Tangent", 8, 2, 9, 2))
sketch7.addConstraint(Sketcher.Constraint("Tangent", 9, 1, 10, 1))
sketch7.addConstraint(Sketcher.Constraint("Tangent", 10, 2, 11, 2))
sketch7.addConstraint(Sketcher.Constraint("Tangent", 11, 1, 12, 1))
sketch7.addConstraint(Sketcher.Constraint("Tangent", 12, 2, 13, 1))
sketch7.addConstraint(Sketcher.Constraint("Tangent", 13, 2, 14, 1))
sketch7.addConstraint(Sketcher.Constraint("Tangent", 14, 2, 15, 2))
sketch7.addConstraint(Sketcher.Constraint("Tangent", 15, 1, 16, 1))
sketch7.addConstraint(Sketcher.Constraint("Tangent", 16, 2, 17, 2))
sketch7.addConstraint(Sketcher.Constraint("Tangent", 17, 1, 18, 1))
sketch7.addConstraint(Sketcher.Constraint("Tangent", 18, 2, 19, 1))
sketch7.addConstraint(Sketcher.Constraint("Tangent", 19, 2, 20, 1))
sketch7.addConstraint(Sketcher.Constraint("Tangent", 20, 2, 21, 2))
sketch7.addConstraint(Sketcher.Constraint("Tangent", 21, 1, 22, 1))
sketch7.addConstraint(Sketcher.Constraint("Tangent", 22, 2, 23, 2))
sketch7.addConstraint(Sketcher.Constraint("Tangent", 23, 1, 0, 1))
sketch7.addConstraint(Sketcher.Constraint("Vertical", 0))
sketch7.addConstraint(Sketcher.Constraint("Horizontal", 2))
sketch7.addConstraint(Sketcher.Constraint("Horizontal", 6))
sketch7.addConstraint(Sketcher.Constraint("Vertical", 8))
sketch7.addConstraint(Sketcher.Constraint("Vertical", 12))
sketch7.addConstraint(Sketcher.Constraint("Horizontal", 14))
sketch7.addConstraint(Sketcher.Constraint("Horizontal", 18))
sketch7.addConstraint(Sketcher.Constraint("Vertical", 20))
sketch7.addConstraint(Sketcher.Constraint("Coincident", 4, 3, -1, 1))
sketch7.addConstraint(Sketcher.Constraint("Coincident", 10, 3, -1, 1))
sketch7.addConstraint(Sketcher.Constraint("Coincident", 16, 3, -1, 1))
sketch7.addConstraint(Sketcher.Constraint("Coincident", 22, 3, -1, 1))
sketch7.addConstraint(Sketcher.Constraint("Coincident", 27, 3, -1, 1))
sketch7.addConstraint(Sketcher.Constraint("Equal", 3, 5))
sketch7.addConstraint(Sketcher.Constraint("Equal", 1, 7))
sketch7.addConstraint(Sketcher.Constraint("Equal", 5, 9))
sketch7.addConstraint(Sketcher.Constraint("Equal", 4, 10))
sketch7.addConstraint(Sketcher.Constraint("Equal", 9, 11))
sketch7.addConstraint(Sketcher.Constraint("Equal", 7, 13))
sketch7.addConstraint(Sketcher.Constraint("Equal", 11, 15))
sketch7.addConstraint(Sketcher.Constraint("Equal", 10, 16))
sketch7.addConstraint(Sketcher.Constraint("Equal", 15, 17))
sketch7.addConstraint(Sketcher.Constraint("Equal", 13, 19))
sketch7.addConstraint(Sketcher.Constraint("Equal", 17, 21))
sketch7.addConstraint(Sketcher.Constraint("Equal", 16, 22))
sketch7.addConstraint(Sketcher.Constraint("Equal", 21, 23))
sketch7.addConstraint(Sketcher.Constraint("Equal", 24, 25))
sketch7.addConstraint(Sketcher.Constraint("Equal", 25, 26))
sketch7.addConstraint(Sketcher.Constraint("Equal", 23, 27))
sketch7.addConstraint(Sketcher.Constraint("Equal", 26, 28))
sketch7.addConstraint(Sketcher.Constraint("Symmetric", 1, 3, 13, 3, -1, 1))
sketch7.addConstraint(Sketcher.Constraint("Symmetric", 7, 3, 19, 3, -1, 1))
sketch7.addConstraint(Sketcher.Constraint("Symmetric", 25, 3, 26, 3, -1, 1))
sketch7.addConstraint(Sketcher.Constraint("Symmetric", 24, 3, 28, 3, -1, 1))
sketch7.addConstraint(Sketcher.Constraint("Symmetric", 1, 3, 7, 3, -2))
sketch7.addConstraint(Sketcher.Constraint("Symmetric", 24, 3, 26, 3, -2))
sketch7.addConstraint(Sketcher.Constraint("Equal", 18, 0))
sketch7.addConstraint(Sketcher.Constraint("Diameter", 27, Q("2 in")))
sketch7.addConstraint(Sketcher.Constraint("Radius", 4, Q("2.5 in")))
sketch7.addConstraint(Sketcher.Constraint("Diameter", 24, Q("0.53 in")))
sketch7.addConstraint(Sketcher.Constraint("Radius", 1, Q("0.785 in")))
sketch7.addConstraint(Sketcher.Constraint("DistanceX", -1, 1, 1, 3, Q("1.58 in")))
sketch7.addConstraint(Sketcher.Constraint("DistanceX", 24, 3, 5, 3, 18.203851))
sketch7.addConstraint(Sketcher.Constraint("DistanceY", 9, 3, 24, 3, 18.203851))
pad2 = doc.addObject("PartDesign::Pad", "Pad001")
body2.addObject(pad2)
pad2.Profile = sketch7
pad2.Length = Q("0.65 in")
body3 = doc.addObject("PartDesign::Body", "Body002")

# Sketch on XY plane
sketch8 = doc.addObject("Sketcher::SketchObject", "Sketch007")
body3.addObject(sketch8)
sketch8.AttachmentSupport = (doc.getObject("XY_Plane002"), [""])
sketch8.MapMode = "FlatFace"
sketch8.addGeometry(Part.LineSegment(Vector(157, -25, 0), Vector(87, -25, 0)), False)
sketch8.addGeometry(Part.LineSegment(Vector(87, -25, 0), Vector(87, -51, 0)), False)
sketch8.addGeometry(Part.ArcOfCircle(Part.Circle(Vector(87, 0, 0), Vector(0, 0, 1), 51), math.radians(-90), math.radians(-75)), False)
sketch8.addGeometry(Part.LineSegment(Vector(100, -49, 0), Vector(141, -38, 0)), False)
sketch8.addGeometry(Part.LineSegment(Vector(141, -38, 0), Vector(157, -38, 0)), False)
sketch8.addGeometry(Part.LineSegment(Vector(157, -38, 0), Vector(157, -25, 0)), False)
sketch8.addConstraint(Sketcher.Constraint("Coincident", 0, 2, 1, 1))
sketch8.addConstraint(Sketcher.Constraint("Coincident", 1, 2, 2, 1))
sketch8.addConstraint(Sketcher.Constraint("Tangent", 2, 2, 3, 1))
sketch8.addConstraint(Sketcher.Constraint("Coincident", 3, 2, 4, 1))
sketch8.addConstraint(Sketcher.Constraint("Coincident", 4, 2, 5, 1))
sketch8.addConstraint(Sketcher.Constraint("Coincident", 5, 2, 0, 1))
sketch8.addConstraint(Sketcher.Constraint("Horizontal", 0))
sketch8.addConstraint(Sketcher.Constraint("Vertical", 1))
sketch8.addConstraint(Sketcher.Constraint("Horizontal", 4))
sketch8.addConstraint(Sketcher.Constraint("Vertical", 5))
sketch8.addConstraint(Sketcher.Constraint("Vertical", 2, 3, 0, 2))
sketch8.addConstraint(Sketcher.Constraint("Radius", 2, Q("2 in")))
sketch8.addConstraint(Sketcher.Constraint("DistanceY", 5, 1, 5, 2, Q("0.5 in")))
sketch8.addConstraint(Sketcher.Constraint("DistanceY", 0, 2, -1, 1, Q("1 in")))
sketch8.addConstraint(Sketcher.Constraint("Angle", 3, Q("15 deg")))
sketch8.addConstraint(Sketcher.Constraint("DistanceX", 0, 2, 0, 1, Q("2.75 in")))
sketch8.addConstraint(Sketcher.Constraint("DistanceX", 4, 1, 4, 2, Q("0.62 in")))
sketch8.addConstraint(Sketcher.Constraint("DistanceX", -1, 1, 2, 3, Q("3.425 in")))
revolution2 = doc.addObject("PartDesign::Revolution", "Revolution001")
body3.addObject(revolution2)
revolution2.Profile = sketch8
revolution2.ReferenceAxis = (sketch8, ["H_Axis"])
revolution2.Angle = 360
body4 = doc.addObject("PartDesign::Body", "Body003")

# Sketch on YZ plane
sketch9 = doc.addObject("Sketcher::SketchObject", "Sketch008")
body4.addObject(sketch9)
sketch9.AttachmentSupport = (doc.getObject("YZ_Plane003"), [""])
sketch9.MapMode = "FlatFace"
sketch9.AttachmentOffset = App.Placement(Vector(0, 0, 6.175 * 25.4), App.Rotation())
sketch9.addGeometry(Part.Circle(Vector(0, 0, 0), Vector(0, 0, 1), 76), False)
sketch9.addGeometry(Part.Circle(Vector(43, -43, 0), Vector(0, 0, 1), 10), False)
sketch9.addGeometry(Part.Circle(Vector(43, 43, 0), Vector(0, 0, 1), 10), False)
sketch9.addGeometry(Part.Circle(Vector(-43, -43, 0), Vector(0, 0, 1), 10), False)
sketch9.addGeometry(Part.Circle(Vector(0, 0, 0), Vector(0, 0, 1), 25), False)
sketch9.addGeometry(Part.Circle(Vector(-43, 43, 0), Vector(0, 0, 1), 10), False)
sketch9.addConstraint(Sketcher.Constraint("Coincident", 0, 3, -1, 1))
sketch9.addConstraint(Sketcher.Constraint("Coincident", 4, 3, -1, 1))
sketch9.addConstraint(Sketcher.Constraint("Equal", 1, 2))
sketch9.addConstraint(Sketcher.Constraint("Equal", 2, 3))
sketch9.addConstraint(Sketcher.Constraint("Equal", 3, 5))
sketch9.addConstraint(Sketcher.Constraint("Symmetric", 2, 3, 3, 3, -1, 1))
sketch9.addConstraint(Sketcher.Constraint("Symmetric", 1, 3, 5, 3, -1, 1))
sketch9.addConstraint(Sketcher.Constraint("Symmetric", 1, 3, 3, 3, -2))
sketch9.addConstraint(Sketcher.Constraint("Diameter", 0, Q("6 in")))
sketch9.addConstraint(Sketcher.Constraint("Diameter", 4, Q("2 in")))
sketch9.addConstraint(Sketcher.Constraint("Diameter", 1, Q("0.75 in")))
sketch9.addConstraint(Sketcher.Constraint("DistanceX", -1, 1, 1, 3, 42.656217))
sketch9.addConstraint(Sketcher.Constraint("DistanceY", 1, 3, -1, 1, 42.656217))
pad3 = doc.addObject("PartDesign::Pad", "Pad002")
body4.addObject(pad3)
pad3.Profile = sketch9
pad3.Length = Q("0.65 in")
body2.Visibility = False
body3.Visibility = False
body4.Visibility = False

doc.recompute()
